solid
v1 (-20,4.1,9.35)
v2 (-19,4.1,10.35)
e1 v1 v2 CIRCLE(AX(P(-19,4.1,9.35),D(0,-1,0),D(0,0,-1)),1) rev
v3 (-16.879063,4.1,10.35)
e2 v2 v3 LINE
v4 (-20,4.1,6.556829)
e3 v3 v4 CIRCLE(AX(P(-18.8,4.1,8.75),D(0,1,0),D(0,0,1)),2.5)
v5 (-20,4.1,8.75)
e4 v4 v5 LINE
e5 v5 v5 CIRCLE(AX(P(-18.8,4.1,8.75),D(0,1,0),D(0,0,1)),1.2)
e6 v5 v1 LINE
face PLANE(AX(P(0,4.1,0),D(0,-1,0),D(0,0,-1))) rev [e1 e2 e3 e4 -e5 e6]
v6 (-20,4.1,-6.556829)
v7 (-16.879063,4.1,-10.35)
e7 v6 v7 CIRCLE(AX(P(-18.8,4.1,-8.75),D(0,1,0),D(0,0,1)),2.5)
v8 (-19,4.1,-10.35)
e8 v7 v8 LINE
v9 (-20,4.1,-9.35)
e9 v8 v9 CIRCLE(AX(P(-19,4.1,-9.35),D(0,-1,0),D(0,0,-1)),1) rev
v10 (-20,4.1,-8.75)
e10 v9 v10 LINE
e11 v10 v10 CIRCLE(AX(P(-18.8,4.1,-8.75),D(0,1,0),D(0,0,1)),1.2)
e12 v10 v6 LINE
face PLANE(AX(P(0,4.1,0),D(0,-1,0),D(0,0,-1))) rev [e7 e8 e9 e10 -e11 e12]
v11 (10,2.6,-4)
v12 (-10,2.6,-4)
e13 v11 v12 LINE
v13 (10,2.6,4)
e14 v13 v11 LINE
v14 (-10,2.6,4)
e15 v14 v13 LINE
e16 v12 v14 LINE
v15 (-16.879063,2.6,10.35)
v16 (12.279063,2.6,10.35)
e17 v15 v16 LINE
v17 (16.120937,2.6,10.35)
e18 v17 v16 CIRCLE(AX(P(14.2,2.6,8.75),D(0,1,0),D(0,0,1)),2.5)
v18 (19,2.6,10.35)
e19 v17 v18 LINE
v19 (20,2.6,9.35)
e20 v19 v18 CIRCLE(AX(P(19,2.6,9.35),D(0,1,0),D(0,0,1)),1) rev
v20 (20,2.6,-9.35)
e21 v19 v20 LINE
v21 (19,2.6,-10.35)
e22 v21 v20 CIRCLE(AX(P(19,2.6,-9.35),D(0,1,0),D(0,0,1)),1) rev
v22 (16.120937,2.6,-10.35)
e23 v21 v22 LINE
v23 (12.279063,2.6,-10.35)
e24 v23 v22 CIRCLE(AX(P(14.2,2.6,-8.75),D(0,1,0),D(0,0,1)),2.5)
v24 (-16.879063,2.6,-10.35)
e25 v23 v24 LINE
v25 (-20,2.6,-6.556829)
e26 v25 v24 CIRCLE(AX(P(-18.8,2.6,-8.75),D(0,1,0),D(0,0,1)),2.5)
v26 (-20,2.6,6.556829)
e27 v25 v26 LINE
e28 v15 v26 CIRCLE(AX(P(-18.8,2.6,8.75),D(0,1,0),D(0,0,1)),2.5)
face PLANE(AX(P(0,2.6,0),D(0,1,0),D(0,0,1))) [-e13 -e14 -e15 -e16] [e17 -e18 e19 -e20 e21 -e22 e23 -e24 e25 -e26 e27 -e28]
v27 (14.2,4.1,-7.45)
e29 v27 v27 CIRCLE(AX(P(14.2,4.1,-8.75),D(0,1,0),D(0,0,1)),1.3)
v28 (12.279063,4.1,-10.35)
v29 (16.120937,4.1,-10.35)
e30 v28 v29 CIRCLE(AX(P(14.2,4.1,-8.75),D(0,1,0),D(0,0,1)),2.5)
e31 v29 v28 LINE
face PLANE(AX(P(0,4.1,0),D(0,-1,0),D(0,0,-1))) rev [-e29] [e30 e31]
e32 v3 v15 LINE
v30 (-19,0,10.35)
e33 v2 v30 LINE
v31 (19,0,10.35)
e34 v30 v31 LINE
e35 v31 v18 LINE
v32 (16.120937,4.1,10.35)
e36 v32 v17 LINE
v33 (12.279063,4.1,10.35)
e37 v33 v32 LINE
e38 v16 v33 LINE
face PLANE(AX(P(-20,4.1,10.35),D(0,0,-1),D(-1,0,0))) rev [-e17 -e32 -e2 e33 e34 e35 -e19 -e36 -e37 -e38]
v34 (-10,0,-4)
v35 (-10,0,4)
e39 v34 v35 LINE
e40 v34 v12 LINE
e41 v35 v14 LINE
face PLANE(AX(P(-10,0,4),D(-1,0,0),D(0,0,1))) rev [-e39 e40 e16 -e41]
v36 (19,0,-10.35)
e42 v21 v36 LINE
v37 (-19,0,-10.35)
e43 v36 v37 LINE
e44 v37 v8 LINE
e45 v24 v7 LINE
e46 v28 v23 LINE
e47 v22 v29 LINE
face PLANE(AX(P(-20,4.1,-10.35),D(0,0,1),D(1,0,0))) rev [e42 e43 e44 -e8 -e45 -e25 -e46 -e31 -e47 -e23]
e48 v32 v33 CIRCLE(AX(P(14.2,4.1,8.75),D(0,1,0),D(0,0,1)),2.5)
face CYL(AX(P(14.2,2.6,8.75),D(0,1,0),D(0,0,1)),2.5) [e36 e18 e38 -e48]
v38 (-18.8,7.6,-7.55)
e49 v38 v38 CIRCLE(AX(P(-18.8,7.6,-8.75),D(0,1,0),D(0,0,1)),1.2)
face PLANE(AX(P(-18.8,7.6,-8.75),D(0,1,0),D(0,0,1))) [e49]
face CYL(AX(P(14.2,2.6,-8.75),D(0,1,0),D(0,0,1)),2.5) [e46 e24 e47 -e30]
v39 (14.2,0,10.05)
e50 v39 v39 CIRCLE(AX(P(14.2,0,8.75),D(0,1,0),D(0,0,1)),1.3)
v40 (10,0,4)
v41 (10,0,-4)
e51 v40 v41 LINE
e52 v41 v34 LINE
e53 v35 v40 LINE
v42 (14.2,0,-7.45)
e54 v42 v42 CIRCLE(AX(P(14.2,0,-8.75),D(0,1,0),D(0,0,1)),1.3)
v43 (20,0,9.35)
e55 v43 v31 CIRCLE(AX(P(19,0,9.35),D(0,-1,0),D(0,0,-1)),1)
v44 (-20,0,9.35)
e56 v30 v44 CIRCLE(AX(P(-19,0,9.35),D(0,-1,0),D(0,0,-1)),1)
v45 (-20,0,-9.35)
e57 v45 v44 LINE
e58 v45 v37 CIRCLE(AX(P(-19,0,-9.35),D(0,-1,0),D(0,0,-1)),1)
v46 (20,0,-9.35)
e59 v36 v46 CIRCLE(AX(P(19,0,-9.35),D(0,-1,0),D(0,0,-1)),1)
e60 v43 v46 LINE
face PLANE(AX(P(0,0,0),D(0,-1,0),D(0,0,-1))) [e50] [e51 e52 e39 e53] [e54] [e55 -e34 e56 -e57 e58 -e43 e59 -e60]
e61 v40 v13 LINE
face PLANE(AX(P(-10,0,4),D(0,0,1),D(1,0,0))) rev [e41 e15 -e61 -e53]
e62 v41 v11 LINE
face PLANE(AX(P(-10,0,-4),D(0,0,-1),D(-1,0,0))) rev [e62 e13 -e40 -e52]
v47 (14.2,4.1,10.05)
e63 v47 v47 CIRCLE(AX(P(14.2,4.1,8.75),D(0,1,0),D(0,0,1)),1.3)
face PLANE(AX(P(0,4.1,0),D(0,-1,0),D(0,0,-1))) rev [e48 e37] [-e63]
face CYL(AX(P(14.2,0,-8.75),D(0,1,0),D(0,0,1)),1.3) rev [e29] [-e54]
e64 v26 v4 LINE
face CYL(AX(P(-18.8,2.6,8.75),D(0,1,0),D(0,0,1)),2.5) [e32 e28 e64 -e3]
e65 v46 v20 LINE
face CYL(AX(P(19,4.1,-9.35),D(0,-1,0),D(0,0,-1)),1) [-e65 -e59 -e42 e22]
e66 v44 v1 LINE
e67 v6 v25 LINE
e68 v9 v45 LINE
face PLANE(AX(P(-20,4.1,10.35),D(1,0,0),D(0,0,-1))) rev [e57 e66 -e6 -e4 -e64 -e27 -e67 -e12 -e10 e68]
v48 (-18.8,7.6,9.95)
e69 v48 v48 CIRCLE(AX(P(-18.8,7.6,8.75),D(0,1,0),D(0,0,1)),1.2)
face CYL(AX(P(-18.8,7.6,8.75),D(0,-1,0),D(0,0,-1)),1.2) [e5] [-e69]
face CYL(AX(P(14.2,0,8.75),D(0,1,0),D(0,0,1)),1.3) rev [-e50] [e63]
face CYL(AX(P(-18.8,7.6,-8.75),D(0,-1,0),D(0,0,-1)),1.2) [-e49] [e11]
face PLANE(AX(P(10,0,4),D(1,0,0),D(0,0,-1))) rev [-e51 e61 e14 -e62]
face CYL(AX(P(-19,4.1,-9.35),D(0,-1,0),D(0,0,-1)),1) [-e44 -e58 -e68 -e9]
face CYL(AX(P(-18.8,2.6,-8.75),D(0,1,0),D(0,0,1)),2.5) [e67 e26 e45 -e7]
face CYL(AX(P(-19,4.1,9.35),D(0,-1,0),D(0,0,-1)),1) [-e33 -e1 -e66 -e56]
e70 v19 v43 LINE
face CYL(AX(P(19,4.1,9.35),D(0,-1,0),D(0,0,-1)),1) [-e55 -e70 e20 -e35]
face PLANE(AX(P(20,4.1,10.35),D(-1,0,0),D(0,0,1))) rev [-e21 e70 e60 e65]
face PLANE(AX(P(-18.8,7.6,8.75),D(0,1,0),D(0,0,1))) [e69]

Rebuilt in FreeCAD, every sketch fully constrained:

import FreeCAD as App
import Part
import Sketcher
from FreeCAD import Vector


def edges_at(feature, points):
    """Names of the edges that pass closest to the given points."""
    edges = feature.Shape.Edges
    near = lambda p: min(range(len(edges)), key=lambda i: edges[i].distToShape(Part.Vertex(*p))[0])
    return sorted({f"Edge{near(p) + 1}" for p in points})


def add_polygon(sketch, points):
    """Adds a closed chain of lines whose ends are joined by coincident constraints."""
    first, n = sketch.GeometryCount, len(points)
    for a, b in zip(points, points[1:] + points[:1]):
        sketch.addGeometry(Part.LineSegment(App.Vector(*a, 0), App.Vector(*b, 0)), False)
    for i in range(n):
        sketch.addConstraint(Sketcher.Constraint("Coincident", first + i, 2, first + (i + 1) % n, 1))

doc = App.newDocument("Part")
body = doc.addObject("PartDesign::Body", "Body")

sketch1 = body.newObject("Sketcher::SketchObject", "Sketch")
sketch1.AttachmentSupport = (doc.getObject("XZ_Plane"), [""])
sketch1.MapMode = "FlatFace"
add_polygon(sketch1, [(-20, -10), (-20, 10), (20, 10), (20, -10)])
sketch1.addConstraint([
    Sketcher.Constraint("Vertical", 0),
    Sketcher.Constraint("Horizontal", 1),
    Sketcher.Constraint("Vertical", 2),
    Sketcher.Constraint("Horizontal", 3),
    Sketcher.Constraint("Symmetric", 0, 2, 2, 2, -1, 1),
    Sketcher.Constraint("DistanceX", 1, 1, 1, 2, 40.0),
    Sketcher.Constraint("DistanceY", 0, 1, 0, 2, 20.7),
])
pad1 = body.newObject("PartDesign::Pad", "Pad")
pad1.Profile = sketch1
pad1.Length = 4.1
pad1.Reversed = True

sketch2 = body.newObject("Sketcher::SketchObject", "Sketch001")
sketch2.AttachmentSupport = (doc.getObject("XZ_Plane"), [""])
sketch2.MapMode = "FlatFace"
sketch2.AttachmentOffset = App.Placement(Vector(0, 0, -4.1), App.Rotation())
sketch2.addGeometry([
    Part.Circle(Vector(-18.8, -8.8, 0), Vector(0, 0, 1), 1.2),
    Part.Circle(Vector(-18.8, 8.8, 0), Vector(0, 0, 1), 1.2),
], False)
sketch2.addConstraint([
    Sketcher.Constraint("Equal", 0, 1),
    Sketcher.Constraint("Symmetric", 0, 3, 1, 3, -1),
    Sketcher.Constraint("Diameter", 0, 2.4),
    Sketcher.Constraint("DistanceX", 0, 3, -1, 1, 18.8),
    Sketcher.Constraint("DistanceY", 0, 3, 1, 3, 17.5),
])
pad2 = body.newObject("PartDesign::Pad", "Pad001")
pad2.Profile = sketch2
pad2.Length = 3.5
pad2.Reversed = True

sketch3 = body.newObject("Sketcher::SketchObject", "Sketch002")
sketch3.AttachmentSupport = (doc.getObject("XZ_Plane"), [""])
sketch3.MapMode = "FlatFace"
sketch3.AttachmentOffset = App.Placement(Vector(0, 0, -4.1), App.Rotation())
sketch3.addGeometry([
    Part.Circle(Vector(14.2, -8.8, 0), Vector(0, 0, 1), 1.3),
    Part.Circle(Vector(14.2, 8.8, 0), Vector(0, 0, 1), 1.3),
], False)
sketch3.addConstraint([
    Sketcher.Constraint("Equal", 0, 1),
    Sketcher.Constraint("Symmetric", 0, 3, 1, 3, -1),
    Sketcher.Constraint("Diameter", 0, 2.6),
    Sketcher.Constraint("DistanceX", -1, 1, 0, 3, 14.2),
    Sketcher.Constraint("DistanceY", 0, 3, 1, 3, 17.5),
])
pocket1 = body.newObject("PartDesign::Pocket", "Pocket")
pocket1.Profile = sketch3
pocket1.Type = "ThroughAll"
pocket1.Reversed = True
doc.recompute()

fillet = body.newObject("PartDesign::Fillet", "Fillet")
fillet.Base = (pocket1, edges_at(pocket1, [
    (20, 2.05, 10.35),
    (-20, 2.05, 10.35),
    (-20, 2.05, -10.35),
    (20, 2.05, -10.35),
]))
fillet.Radius = 1

sketch4 = body.newObject("Sketcher::SketchObject", "Sketch003")
sketch4.AttachmentSupport = (doc.getObject("XZ_Plane"), [""])
sketch4.MapMode = "FlatFace"
sketch4.AttachmentOffset = App.Placement(Vector(0, 0, -4.1), App.Rotation())
add_polygon(sketch4, [(-24.1, -13.9), (-24.1, 14.4), (24.8, 14.4), (24.8, -13.9)])
sketch4.addGeometry(Part.Circle(Vector(-18.8, 8.8, 0), Vector(0, 0, 1), 2.5), False)
sketch4.addGeometry(Part.Circle(Vector(14.2, 8.8, 0), Vector(0, 0, 1), 2.5), False)
sketch4.addGeometry(Part.Circle(Vector(-18.8, -8.8, 0), Vector(0, 0, 1), 2.5), False)
sketch4.addGeometry(Part.Circle(Vector(14.2, -8.8, 0), Vector(0, 0, 1), 2.5), False)
sketch4.addConstraint([
    Sketcher.Constraint("Vertical", 0),
    Sketcher.Constraint("Horizontal", 1),
    Sketcher.Constraint("Vertical", 2),
    Sketcher.Constraint("Horizontal", 3),
    Sketcher.Constraint("Equal", 4, 5),
    Sketcher.Constraint("Equal", 5, 6),
    Sketcher.Constraint("Equal", 6, 7),
    Sketcher.Constraint("Symmetric", 4, 3, 6, 3, -1),
    Sketcher.Constraint("Symmetric", 5, 3, 7, 3, -1),
    Sketcher.Constraint("Horizontal", 4, 3, 5, 3),
    Sketcher.Constraint("Diameter", 4, 5.0),
    Sketcher.Constraint("DistanceX", 4, 3, 5, 3, 33.0),
    Sketcher.Constraint("DistanceX", 4, 3, -1, 1, 18.8),
    Sketcher.Constraint("DistanceY", 6, 3, 4, 3, 17.5),
    Sketcher.Constraint("DistanceX", 1, 1, 1, 2, 48.899632),
    Sketcher.Constraint("DistanceY", 0, 1, 0, 2, 28.322761),
    Sketcher.Constraint("DistanceY", 2, 2, -1, 1, 13.8953),
    Sketcher.Constraint("DistanceX", -1, 1, 1, 2, 24.804589),
])
pocket2 = body.newObject("PartDesign::Pocket", "Pocket001")
pocket2.Profile = sketch4
pocket2.Length = 1.5
pocket2.Reversed = True

sketch5 = body.newObject("Sketcher::SketchObject", "Sketch004")
sketch5.AttachmentSupport = (doc.getObject("XZ_Plane"), [""])
sketch5.MapMode = "FlatFace"
sketch5.AttachmentOffset = App.Placement(Vector(0, 0, -2.6), App.Rotation())
add_polygon(sketch5, [(-10, -4), (-10, 4), (10, 4), (10, -4)])
sketch5.addConstraint([
    Sketcher.Constraint("Vertical", 0),
    Sketcher.Constraint("Horizontal", 1),
    Sketcher.Constraint("Vertical", 2),
    Sketcher.Constraint("Horizontal", 3),
    Sketcher.Constraint("Symmetric", 0, 2, 2, 2, -1, 1),
    Sketcher.Constraint("DistanceX", 1, 1, 1, 2, 20.0),
    Sketcher.Constraint("DistanceY", 0, 1, 0, 2, 8.0),
])
pocket3 = body.newObject("PartDesign::Pocket", "Pocket002")
pocket3.Profile = sketch5
pocket3.Type = "ThroughAll"
pocket3.Reversed = True

doc.recompute()
